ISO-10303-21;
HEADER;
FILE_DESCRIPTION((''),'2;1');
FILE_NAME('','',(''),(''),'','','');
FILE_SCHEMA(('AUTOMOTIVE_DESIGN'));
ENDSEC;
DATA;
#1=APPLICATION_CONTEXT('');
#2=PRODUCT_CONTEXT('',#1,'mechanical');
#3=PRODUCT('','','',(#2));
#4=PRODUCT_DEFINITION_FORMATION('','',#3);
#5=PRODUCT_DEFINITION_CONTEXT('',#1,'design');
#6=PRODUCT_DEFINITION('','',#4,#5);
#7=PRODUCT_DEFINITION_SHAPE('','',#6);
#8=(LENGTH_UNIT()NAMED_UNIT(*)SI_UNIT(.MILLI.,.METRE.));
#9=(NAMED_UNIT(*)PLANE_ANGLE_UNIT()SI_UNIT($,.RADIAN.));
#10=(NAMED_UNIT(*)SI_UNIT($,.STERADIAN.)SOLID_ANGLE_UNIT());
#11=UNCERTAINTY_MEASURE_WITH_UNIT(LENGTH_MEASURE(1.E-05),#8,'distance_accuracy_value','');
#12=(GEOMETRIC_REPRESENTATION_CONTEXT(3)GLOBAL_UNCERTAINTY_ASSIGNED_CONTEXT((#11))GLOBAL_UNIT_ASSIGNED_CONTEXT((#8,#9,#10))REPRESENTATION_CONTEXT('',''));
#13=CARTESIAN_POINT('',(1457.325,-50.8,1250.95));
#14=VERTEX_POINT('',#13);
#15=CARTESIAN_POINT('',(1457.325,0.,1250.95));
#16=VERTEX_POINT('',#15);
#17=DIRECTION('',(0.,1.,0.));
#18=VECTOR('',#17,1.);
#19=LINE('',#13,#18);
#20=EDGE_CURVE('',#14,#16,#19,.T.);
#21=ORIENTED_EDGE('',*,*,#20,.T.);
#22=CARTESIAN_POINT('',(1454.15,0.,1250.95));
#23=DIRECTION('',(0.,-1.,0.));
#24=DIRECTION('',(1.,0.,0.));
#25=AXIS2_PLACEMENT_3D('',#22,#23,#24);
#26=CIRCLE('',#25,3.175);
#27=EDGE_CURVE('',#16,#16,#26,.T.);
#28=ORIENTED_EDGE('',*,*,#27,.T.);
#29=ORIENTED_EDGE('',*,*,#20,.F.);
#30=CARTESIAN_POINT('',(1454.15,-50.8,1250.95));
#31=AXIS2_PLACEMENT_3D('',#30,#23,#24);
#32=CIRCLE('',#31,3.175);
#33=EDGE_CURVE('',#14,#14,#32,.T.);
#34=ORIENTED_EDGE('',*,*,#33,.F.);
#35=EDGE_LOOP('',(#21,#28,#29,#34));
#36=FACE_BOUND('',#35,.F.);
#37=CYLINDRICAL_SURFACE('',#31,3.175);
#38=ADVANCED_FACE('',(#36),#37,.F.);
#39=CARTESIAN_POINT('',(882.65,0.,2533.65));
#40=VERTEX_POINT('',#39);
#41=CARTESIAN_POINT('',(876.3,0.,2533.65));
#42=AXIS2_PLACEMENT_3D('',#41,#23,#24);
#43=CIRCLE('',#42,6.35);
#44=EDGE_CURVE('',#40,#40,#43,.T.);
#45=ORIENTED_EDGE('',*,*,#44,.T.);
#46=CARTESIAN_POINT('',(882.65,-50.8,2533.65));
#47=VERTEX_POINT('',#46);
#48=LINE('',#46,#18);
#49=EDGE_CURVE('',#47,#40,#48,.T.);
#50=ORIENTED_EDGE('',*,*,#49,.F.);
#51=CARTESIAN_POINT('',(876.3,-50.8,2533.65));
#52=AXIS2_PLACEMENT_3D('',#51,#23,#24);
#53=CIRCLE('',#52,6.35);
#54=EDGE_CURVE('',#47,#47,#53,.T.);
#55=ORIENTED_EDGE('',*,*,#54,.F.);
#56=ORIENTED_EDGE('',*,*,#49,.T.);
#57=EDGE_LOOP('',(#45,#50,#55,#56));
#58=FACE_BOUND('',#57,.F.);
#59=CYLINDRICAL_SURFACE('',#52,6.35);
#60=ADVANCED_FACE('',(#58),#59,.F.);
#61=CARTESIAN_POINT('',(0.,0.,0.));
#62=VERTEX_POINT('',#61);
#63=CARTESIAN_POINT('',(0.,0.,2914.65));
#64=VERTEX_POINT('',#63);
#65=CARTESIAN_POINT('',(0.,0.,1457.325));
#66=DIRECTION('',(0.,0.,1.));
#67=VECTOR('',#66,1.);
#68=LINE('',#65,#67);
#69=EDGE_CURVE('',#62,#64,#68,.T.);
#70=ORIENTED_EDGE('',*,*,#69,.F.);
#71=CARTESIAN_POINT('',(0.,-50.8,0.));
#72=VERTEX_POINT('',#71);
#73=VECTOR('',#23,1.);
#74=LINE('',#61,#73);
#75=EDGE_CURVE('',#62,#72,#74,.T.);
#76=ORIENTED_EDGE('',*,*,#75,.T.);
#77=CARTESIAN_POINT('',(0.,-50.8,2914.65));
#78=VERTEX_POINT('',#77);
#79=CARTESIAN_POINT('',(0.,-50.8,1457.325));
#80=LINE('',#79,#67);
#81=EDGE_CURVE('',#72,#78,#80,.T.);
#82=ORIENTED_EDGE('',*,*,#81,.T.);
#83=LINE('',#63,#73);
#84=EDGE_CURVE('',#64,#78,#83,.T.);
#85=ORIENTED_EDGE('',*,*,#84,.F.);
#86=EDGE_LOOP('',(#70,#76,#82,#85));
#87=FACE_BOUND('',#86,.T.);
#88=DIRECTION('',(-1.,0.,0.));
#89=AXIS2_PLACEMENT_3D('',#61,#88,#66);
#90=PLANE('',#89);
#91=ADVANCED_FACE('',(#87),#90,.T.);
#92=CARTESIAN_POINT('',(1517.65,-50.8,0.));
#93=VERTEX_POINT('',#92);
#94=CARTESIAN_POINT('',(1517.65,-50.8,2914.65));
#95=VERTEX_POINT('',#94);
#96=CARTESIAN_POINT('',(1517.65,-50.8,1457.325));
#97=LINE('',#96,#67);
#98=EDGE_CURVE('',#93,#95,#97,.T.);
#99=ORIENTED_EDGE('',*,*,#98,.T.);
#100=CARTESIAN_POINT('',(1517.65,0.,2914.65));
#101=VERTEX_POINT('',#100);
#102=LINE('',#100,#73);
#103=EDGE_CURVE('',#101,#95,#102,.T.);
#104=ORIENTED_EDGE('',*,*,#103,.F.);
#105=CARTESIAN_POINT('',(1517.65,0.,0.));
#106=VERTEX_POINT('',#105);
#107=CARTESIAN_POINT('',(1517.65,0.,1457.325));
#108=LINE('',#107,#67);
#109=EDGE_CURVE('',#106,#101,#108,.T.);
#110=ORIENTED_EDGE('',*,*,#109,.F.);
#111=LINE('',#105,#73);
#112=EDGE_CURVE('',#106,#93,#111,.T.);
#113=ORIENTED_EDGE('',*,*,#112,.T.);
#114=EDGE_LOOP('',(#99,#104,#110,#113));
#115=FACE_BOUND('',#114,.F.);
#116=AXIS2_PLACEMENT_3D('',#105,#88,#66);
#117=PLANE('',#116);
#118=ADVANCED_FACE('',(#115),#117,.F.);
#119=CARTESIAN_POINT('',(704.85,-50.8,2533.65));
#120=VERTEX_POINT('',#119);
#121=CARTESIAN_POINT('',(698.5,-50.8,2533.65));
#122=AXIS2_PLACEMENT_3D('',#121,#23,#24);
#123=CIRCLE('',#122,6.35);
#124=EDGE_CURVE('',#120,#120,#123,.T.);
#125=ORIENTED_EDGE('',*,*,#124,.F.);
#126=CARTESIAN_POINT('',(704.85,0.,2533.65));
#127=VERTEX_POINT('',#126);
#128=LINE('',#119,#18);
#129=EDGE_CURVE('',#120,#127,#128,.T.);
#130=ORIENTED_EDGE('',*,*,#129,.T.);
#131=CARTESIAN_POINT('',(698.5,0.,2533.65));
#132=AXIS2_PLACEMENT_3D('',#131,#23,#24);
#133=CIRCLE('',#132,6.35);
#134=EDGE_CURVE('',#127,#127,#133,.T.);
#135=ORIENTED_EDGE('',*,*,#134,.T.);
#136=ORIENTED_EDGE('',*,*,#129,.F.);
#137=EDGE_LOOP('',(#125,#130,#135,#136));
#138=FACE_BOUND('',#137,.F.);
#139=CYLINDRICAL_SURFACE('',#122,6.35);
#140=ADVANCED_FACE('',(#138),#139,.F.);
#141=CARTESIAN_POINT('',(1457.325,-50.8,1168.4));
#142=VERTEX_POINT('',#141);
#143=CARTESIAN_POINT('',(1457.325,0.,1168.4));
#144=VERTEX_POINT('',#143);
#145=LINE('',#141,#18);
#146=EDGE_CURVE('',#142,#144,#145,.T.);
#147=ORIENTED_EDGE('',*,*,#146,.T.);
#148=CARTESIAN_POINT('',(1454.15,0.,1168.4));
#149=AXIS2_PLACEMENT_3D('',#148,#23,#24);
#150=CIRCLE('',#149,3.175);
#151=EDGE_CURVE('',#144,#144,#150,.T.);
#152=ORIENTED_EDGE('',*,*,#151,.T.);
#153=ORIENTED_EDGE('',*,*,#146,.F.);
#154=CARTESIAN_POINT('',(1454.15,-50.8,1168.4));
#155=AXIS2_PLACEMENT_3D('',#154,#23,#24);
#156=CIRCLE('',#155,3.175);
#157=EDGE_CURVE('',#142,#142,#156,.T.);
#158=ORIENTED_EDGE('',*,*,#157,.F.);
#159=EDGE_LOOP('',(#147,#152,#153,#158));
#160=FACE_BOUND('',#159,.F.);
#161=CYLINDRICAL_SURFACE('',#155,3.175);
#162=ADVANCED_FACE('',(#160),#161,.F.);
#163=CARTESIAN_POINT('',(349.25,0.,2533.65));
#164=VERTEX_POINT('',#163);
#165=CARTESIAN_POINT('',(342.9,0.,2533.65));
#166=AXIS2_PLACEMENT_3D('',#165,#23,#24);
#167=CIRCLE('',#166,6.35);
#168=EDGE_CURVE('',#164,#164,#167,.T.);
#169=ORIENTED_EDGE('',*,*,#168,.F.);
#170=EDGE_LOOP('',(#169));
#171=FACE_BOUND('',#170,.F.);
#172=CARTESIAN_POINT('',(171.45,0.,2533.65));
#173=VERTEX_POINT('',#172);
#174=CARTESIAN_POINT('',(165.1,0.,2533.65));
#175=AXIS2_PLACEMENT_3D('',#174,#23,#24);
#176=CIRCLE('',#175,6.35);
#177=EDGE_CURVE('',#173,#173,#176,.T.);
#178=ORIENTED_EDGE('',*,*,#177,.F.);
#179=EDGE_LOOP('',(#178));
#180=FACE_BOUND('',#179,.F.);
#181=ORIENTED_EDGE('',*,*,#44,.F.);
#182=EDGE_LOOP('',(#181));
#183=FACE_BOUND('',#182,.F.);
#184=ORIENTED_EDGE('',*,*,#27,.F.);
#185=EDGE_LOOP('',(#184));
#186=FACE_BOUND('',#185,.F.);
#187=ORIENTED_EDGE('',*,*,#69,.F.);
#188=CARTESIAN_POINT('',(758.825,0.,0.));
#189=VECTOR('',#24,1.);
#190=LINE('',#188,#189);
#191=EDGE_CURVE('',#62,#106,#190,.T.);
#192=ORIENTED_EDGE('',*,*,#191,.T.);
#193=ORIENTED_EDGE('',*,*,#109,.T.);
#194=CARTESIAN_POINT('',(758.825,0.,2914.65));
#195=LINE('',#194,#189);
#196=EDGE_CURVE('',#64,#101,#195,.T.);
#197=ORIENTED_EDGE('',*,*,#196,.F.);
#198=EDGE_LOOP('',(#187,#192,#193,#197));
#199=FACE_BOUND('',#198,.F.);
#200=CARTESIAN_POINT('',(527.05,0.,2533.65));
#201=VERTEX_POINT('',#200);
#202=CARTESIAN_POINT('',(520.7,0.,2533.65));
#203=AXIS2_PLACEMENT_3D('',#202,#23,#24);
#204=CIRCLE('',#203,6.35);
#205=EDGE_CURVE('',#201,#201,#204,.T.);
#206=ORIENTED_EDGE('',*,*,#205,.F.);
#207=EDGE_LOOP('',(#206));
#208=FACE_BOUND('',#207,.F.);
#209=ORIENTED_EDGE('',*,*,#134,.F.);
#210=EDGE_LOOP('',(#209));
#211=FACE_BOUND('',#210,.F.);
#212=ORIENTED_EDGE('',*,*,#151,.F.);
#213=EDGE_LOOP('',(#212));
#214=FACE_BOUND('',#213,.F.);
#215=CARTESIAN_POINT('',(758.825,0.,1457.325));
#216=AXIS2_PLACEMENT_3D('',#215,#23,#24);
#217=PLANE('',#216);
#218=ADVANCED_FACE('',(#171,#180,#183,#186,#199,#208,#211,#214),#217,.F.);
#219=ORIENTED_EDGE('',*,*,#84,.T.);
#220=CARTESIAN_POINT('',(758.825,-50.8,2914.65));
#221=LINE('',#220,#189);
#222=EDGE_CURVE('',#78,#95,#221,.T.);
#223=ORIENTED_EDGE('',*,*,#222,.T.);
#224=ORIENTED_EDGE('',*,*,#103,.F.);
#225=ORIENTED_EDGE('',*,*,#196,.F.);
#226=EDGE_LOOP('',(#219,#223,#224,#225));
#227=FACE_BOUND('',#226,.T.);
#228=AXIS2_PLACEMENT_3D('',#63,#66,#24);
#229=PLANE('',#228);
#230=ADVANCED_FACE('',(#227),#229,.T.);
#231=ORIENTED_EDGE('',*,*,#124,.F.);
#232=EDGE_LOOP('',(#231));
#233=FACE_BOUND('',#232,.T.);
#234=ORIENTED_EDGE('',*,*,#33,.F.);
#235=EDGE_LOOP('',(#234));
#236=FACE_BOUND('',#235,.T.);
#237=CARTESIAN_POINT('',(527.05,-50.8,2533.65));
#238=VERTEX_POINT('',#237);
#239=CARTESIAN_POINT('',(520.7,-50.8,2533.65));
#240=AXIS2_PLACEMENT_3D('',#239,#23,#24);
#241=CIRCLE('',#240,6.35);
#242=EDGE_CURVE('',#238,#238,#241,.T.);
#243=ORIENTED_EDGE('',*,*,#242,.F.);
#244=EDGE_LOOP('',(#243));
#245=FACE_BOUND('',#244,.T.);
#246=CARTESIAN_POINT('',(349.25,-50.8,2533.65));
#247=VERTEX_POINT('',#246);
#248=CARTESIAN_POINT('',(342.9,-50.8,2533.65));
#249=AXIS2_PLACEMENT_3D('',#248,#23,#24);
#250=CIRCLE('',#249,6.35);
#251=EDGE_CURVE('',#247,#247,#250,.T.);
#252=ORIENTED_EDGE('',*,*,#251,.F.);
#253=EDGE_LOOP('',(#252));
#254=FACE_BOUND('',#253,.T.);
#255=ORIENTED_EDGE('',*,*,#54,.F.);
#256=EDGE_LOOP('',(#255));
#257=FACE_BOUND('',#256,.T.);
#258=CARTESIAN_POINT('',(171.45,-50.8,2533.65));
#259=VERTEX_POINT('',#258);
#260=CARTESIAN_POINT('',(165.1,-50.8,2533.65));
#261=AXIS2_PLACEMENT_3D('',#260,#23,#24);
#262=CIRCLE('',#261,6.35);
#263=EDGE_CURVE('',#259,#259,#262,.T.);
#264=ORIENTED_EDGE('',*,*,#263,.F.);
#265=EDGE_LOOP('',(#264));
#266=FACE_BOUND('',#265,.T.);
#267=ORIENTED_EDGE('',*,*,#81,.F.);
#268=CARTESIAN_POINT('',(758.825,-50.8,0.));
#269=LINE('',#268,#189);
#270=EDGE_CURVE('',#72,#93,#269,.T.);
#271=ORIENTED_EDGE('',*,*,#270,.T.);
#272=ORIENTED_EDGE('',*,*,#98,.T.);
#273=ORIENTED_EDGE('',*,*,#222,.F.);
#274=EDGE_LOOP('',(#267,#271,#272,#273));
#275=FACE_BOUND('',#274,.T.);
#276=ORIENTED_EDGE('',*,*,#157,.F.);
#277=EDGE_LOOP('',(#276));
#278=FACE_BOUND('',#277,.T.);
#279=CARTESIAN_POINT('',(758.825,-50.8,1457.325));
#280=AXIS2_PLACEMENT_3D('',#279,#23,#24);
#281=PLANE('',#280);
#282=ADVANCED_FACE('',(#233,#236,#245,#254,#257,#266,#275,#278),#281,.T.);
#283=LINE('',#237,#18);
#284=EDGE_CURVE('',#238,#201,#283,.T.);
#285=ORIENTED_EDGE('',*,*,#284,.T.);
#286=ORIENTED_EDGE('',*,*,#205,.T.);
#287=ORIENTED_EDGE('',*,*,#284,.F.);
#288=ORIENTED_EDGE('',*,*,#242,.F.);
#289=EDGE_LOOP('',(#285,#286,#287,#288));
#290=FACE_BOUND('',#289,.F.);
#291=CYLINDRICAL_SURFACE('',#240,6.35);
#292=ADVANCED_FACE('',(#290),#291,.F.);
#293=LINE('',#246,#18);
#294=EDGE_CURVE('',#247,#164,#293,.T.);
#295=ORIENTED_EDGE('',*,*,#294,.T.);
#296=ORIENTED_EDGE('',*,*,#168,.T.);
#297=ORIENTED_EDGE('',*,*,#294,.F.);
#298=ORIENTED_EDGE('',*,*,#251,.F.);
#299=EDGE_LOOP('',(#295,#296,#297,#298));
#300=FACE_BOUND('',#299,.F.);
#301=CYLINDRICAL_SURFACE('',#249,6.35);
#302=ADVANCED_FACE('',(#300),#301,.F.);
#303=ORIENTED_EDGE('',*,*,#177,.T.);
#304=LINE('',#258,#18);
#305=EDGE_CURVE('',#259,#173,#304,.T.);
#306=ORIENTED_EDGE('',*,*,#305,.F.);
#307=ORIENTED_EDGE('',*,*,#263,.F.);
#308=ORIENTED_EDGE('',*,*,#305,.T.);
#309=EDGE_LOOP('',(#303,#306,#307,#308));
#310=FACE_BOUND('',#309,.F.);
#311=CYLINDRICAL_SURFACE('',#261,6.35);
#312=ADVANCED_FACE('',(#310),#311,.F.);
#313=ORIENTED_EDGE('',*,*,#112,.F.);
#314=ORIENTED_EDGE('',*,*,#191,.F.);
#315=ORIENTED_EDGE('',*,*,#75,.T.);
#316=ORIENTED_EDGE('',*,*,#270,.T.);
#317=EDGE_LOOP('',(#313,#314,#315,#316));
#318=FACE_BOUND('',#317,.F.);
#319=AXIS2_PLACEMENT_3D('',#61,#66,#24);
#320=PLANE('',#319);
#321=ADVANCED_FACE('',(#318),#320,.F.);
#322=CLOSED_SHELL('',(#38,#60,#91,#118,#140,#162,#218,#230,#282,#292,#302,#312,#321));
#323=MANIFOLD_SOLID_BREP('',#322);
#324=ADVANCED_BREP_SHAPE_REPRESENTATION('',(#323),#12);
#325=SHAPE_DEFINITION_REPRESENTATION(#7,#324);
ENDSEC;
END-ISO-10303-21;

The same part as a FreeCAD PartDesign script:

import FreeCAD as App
import Part
import Sketcher
from FreeCAD import Vector
Q = App.Units.Quantity


def add_polygon(sketch, points):
    """Adds a closed chain of lines whose ends are joined by coincident constraints."""
    first, n = sketch.GeometryCount, len(points)
    for a, b in zip(points, points[1:] + points[:1]):
        sketch.addGeometry(Part.LineSegment(App.Vector(*a, 0), App.Vector(*b, 0)), False)
    for i in range(n):
        sketch.addConstraint(Sketcher.Constraint("Coincident", first + i, 2, first + (i + 1) % n, 1))

doc = App.newDocument("Part")
body = doc.addObject("PartDesign::Body", "Body")

sketch1 = body.newObject("Sketcher::SketchObject", "Sketch")
sketch1.AttachmentSupport = (doc.getObject("XZ_Plane"), [""])
sketch1.MapMode = "FlatFace"
add_polygon(sketch1, [(0, 2914.65), (0, 0), (1517.65, 0), (1517.65, 2914.65)])
sketch1.addConstraint(Sketcher.Constraint("Vertical", 0))
sketch1.addConstraint(Sketcher.Constraint("Horizontal", 1))
sketch1.addConstraint(Sketcher.Constraint("Vertical", 2))
sketch1.addConstraint(Sketcher.Constraint("Horizontal", 3))
sketch1.addConstraint(Sketcher.Constraint("Coincident", 0, 2, -1, 1))
sketch1.addConstraint(Sketcher.Constraint("DistanceX", 1, 1, 1, 2, Q("59.75 in")))
sketch1.addConstraint(Sketcher.Constraint("DistanceY", 0, 2, 0, 1, Q("114.75 in")))
pad1 = body.newObject("PartDesign::Pad", "Pad")
pad1.Profile = sketch1
pad1.Length = Q("2 in")

sketch2 = body.newObject("Sketcher::SketchObject", "Sketch001")
sketch2.AttachmentSupport = (doc.getObject("XZ_Plane"), [""])
sketch2.MapMode = "FlatFace"
sketch2.AttachmentOffset = App.Placement(Vector(0, 0, 2 * 25.4), App.Rotation())
sketch2.addGeometry(Part.Circle(Vector(165.1, 2533.65, 0), Vector(0, 0, 1), 6.35), False)
sketch2.addGeometry(Part.Circle(Vector(342.9, 2533.65, 0), Vector(0, 0, 1), 6.35), False)
sketch2.addGeometry(Part.Circle(Vector(520.7, 2533.65, 0), Vector(0, 0, 1), 6.35), False)
sketch2.addGeometry(Part.Circle(Vector(698.5, 2533.65, 0), Vector(0, 0, 1), 6.35), False)
sketch2.addGeometry(Part.Circle(Vector(876.3, 2533.65, 0), Vector(0, 0, 1), 6.35), False)
sketch2.addConstraint(Sketcher.Constraint("Equal", 0, 1))
sketch2.addConstraint(Sketcher.Constraint("Equal", 1, 2))
sketch2.addConstraint(Sketcher.Constraint("Equal", 2, 3))
sketch2.addConstraint(Sketcher.Constraint("Equal", 3, 4))
sketch2.addConstraint(Sketcher.Constraint("Horizontal", 0, 3, 1, 3))
sketch2.addConstraint(Sketcher.Constraint("Horizontal", 1, 3, 2, 3))
sketch2.addConstraint(Sketcher.Constraint("Horizontal", 2, 3, 3, 3))
sketch2.addConstraint(Sketcher.Constraint("Horizontal", 3, 3, 4, 3))
sketch2.addConstraint(Sketcher.Constraint("Diameter", 0, Q("0.5 in")))
sketch2.addConstraint(Sketcher.Constraint("DistanceX", 0, 3, 1, 3, Q("7 in")))
sketch2.addConstraint(Sketcher.Constraint("DistanceX", 1, 3, 2, 3, Q("7 in")))
sketch2.addConstraint(Sketcher.Constraint("DistanceX", 2, 3, 3, 3, Q("7 in")))
sketch2.addConstraint(Sketcher.Constraint("DistanceX", 3, 3, 4, 3, Q("7 in")))
sketch2.addConstraint(Sketcher.Constraint("DistanceX", -1, 1, 0, 3, Q("6.5 in")))
sketch2.addConstraint(Sketcher.Constraint("DistanceY", -1, 1, 0, 3, Q("99.75 in")))
pocket1 = body.newObject("PartDesign::Pocket", "Pocket")
pocket1.Profile = sketch2
pocket1.Type = "ThroughAll"

sketch3 = body.newObject("Sketcher::SketchObject", "Sketch002")
sketch3.AttachmentSupport = (doc.getObject("XZ_Plane"), [""])
sketch3.MapMode = "FlatFace"
sketch3.AttachmentOffset = App.Placement(Vector(0, 0, 2 * 25.4), App.Rotation())
sketch3.addGeometry(Part.Circle(Vector(1454.15, 1250.95, 0), Vector(0, 0, 1), 3.175), False)
sketch3.addGeometry(Part.Circle(Vector(1454.15, 1168.4, 0), Vector(0, 0, 1), 3.175), False)
sketch3.addConstraint(Sketcher.Constraint("Equal", 0, 1))
sketch3.addConstraint(Sketcher.Constraint("Vertical", 0, 3, 1, 3))
sketch3.addConstraint(Sketcher.Constraint("Diameter", 0, Q("0.25 in")))
sketch3.addConstraint(Sketcher.Constraint("DistanceY", -1, 1, 1, 3, Q("46 in")))
sketch3.addConstraint(Sketcher.Constraint("DistanceX", -1, 1, 0, 3, Q("57.25 in")))
sketch3.addConstraint(Sketcher.Constraint("DistanceY", -1, 1, 0, 3, Q("49.25 in")))
pocket2 = body.newObject("PartDesign::Pocket", "Pocket001")
pocket2.Profile = sketch3
pocket2.Type = "ThroughAll"

doc.recompute()
